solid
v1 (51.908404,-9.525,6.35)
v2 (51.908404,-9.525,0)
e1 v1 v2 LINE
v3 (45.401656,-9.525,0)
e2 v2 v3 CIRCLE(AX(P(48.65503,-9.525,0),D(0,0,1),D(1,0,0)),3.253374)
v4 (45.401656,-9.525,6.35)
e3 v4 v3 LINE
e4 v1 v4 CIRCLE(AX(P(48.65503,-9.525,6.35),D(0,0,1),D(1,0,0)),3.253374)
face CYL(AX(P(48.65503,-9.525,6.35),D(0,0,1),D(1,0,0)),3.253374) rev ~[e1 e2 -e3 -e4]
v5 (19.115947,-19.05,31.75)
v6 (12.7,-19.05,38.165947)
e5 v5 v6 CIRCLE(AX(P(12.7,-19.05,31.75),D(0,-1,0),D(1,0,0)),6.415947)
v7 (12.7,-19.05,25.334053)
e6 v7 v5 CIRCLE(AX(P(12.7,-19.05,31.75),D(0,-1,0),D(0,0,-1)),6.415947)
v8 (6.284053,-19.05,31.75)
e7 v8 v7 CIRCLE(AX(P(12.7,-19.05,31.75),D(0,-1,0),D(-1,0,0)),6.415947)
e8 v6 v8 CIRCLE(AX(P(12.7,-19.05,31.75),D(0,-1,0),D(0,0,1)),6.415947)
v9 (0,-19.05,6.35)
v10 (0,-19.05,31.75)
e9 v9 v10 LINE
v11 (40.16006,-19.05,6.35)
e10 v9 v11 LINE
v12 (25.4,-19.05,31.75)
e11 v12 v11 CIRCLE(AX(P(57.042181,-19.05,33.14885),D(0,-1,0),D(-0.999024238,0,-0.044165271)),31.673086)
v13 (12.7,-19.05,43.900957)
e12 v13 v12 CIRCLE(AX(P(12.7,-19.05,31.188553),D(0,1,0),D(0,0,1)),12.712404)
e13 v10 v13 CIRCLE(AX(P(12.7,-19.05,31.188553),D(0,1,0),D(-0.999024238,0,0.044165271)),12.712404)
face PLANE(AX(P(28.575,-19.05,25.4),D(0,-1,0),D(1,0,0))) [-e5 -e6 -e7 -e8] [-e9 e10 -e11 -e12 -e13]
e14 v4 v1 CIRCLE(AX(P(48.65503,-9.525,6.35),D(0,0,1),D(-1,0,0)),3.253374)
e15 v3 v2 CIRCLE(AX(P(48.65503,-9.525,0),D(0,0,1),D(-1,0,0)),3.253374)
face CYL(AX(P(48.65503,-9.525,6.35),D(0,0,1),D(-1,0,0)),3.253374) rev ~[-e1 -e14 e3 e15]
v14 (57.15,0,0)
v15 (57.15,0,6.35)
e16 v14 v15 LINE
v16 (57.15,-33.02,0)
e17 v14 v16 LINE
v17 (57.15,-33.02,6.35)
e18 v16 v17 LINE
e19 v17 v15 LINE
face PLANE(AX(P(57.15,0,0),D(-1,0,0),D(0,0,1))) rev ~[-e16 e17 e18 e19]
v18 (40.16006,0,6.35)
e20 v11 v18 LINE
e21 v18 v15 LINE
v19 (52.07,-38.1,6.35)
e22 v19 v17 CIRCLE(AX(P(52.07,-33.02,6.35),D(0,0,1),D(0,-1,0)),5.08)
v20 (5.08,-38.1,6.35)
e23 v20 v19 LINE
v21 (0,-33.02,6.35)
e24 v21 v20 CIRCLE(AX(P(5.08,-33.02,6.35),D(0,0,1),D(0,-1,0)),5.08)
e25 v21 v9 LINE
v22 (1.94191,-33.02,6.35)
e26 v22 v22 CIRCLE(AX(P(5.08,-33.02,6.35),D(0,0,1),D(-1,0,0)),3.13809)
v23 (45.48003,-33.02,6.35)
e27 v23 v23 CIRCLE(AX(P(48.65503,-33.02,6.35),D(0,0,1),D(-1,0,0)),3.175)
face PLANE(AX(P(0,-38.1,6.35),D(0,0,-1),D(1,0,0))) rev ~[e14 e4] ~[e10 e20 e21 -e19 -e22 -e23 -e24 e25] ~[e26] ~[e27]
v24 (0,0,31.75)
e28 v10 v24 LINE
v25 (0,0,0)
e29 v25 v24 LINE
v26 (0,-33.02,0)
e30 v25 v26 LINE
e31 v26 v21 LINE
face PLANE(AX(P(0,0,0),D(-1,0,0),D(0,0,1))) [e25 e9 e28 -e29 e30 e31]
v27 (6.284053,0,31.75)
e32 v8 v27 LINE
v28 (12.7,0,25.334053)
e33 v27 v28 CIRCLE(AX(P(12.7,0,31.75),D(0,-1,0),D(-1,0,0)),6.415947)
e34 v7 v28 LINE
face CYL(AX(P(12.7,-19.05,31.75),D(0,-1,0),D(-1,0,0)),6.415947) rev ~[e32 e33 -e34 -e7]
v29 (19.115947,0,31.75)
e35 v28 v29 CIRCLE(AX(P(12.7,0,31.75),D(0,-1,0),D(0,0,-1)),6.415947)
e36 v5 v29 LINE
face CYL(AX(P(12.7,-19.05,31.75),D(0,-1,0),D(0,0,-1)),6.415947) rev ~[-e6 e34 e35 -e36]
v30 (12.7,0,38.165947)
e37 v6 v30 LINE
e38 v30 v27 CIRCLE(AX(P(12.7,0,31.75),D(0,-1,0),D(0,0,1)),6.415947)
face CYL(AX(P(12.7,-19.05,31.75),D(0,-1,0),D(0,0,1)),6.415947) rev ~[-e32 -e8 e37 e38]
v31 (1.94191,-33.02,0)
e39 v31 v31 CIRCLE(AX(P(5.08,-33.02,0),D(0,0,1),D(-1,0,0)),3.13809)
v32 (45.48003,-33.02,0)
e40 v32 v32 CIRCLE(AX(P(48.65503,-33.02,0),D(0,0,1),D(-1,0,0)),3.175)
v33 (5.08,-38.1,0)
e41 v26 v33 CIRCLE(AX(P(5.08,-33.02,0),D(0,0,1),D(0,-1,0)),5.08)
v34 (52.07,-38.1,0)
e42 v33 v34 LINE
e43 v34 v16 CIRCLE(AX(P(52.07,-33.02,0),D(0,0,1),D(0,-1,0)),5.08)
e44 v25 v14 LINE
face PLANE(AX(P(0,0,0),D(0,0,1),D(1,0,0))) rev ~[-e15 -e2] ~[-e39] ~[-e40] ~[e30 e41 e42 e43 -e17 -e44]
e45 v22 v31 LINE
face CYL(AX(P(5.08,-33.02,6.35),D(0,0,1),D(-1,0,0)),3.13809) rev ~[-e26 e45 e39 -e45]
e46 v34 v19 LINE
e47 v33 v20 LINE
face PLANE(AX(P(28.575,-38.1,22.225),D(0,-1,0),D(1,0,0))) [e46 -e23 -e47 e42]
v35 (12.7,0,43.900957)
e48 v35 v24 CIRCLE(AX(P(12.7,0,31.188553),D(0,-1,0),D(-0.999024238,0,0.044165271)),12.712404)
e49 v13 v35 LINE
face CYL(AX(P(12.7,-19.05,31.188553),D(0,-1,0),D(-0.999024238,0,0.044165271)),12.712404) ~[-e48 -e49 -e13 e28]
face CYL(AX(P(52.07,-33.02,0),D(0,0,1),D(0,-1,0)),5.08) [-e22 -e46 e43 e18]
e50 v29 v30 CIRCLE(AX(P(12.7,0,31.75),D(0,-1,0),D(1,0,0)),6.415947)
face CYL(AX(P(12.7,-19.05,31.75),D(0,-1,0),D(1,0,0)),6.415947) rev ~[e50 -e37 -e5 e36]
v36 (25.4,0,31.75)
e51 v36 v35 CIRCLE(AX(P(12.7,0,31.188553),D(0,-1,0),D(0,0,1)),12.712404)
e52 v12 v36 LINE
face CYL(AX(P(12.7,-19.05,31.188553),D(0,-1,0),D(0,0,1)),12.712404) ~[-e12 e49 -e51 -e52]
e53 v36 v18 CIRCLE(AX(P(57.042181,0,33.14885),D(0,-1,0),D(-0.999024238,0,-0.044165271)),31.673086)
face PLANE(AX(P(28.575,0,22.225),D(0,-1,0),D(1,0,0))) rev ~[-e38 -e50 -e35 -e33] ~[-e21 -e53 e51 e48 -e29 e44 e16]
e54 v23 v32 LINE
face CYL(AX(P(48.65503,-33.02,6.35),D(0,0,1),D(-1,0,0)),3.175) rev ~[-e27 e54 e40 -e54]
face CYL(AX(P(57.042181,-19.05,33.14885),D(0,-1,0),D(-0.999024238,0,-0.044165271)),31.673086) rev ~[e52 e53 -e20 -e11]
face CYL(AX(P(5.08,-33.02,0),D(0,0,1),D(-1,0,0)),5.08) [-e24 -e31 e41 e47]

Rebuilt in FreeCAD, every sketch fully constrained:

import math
import FreeCAD as App
import Part
import Sketcher
from FreeCAD import Vector
Q = App.Units.Quantity


def edges_at(feature, points):
    """Names of the edges that pass closest to the given points."""
    edges = feature.Shape.Edges
    near = lambda p: min(range(len(edges)), key=lambda i: edges[i].distToShape(Part.Vertex(*p))[0])
    return sorted({f"Edge{near(p) + 1}" for p in points})


def add_polygon(sketch, points):
    """Adds a closed chain of lines whose ends are joined by coincident constraints."""
    first, n = sketch.GeometryCount, len(points)
    for a, b in zip(points, points[1:] + points[:1]):
        sketch.addGeometry(Part.LineSegment(App.Vector(*a, 0), App.Vector(*b, 0)), False)
    for i in range(n):
        sketch.addConstraint(Sketcher.Constraint("Coincident", first + i, 2, first + (i + 1) % n, 1))

doc = App.newDocument("Part")
body = doc.addObject("PartDesign::Body", "Body")

# Sketch on XZ plane
sketch1 = body.newObject("Sketcher::SketchObject", "Sketch")
sketch1.AttachmentSupport = (doc.getObject("XZ_Plane"), [""])
sketch1.MapMode = "FlatFace"
add_polygon(sketch1, [(0, 44), (0, 0), (57, 0), (57, 44)])  # lines 0-3
sketch1.addConstraint(Sketcher.Constraint("Vertical", 0))
sketch1.addConstraint(Sketcher.Constraint("Horizontal", 1))
sketch1.addConstraint(Sketcher.Constraint("Vertical", 2))
sketch1.addConstraint(Sketcher.Constraint("Horizontal", 3))
sketch1.addConstraint(Sketcher.Constraint("Coincident", 0, 2, -1, 1))
sketch1.addConstraint(Sketcher.Constraint("DistanceX", 1, 1, 1, 2, Q("2.25 in")))
sketch1.addConstraint(Sketcher.Constraint("DistanceY", 0, 2, 0, 1, Q("1.75 in")))
pad1 = body.newObject("PartDesign::Pad", "Pad")
pad1.Profile = sketch1
pad1.Length = Q("1.5 in")

# Sketch on XZ plane
sketch2 = body.newObject("Sketcher::SketchObject", "Sketch001")
sketch2.AttachmentSupport = (doc.getObject("XZ_Plane"), [""])
sketch2.MapMode = "FlatFace"
sketch2.AttachmentOffset = App.Placement(Vector(0, 0, 1.5 * 25.4), App.Rotation())
add_polygon(sketch2, [(0, 44), (0, 6), (57, 6), (57, 44)])  # lines 0-3
sketch2.addConstraint(Sketcher.Constraint("Vertical", 0))
sketch2.addConstraint(Sketcher.Constraint("Horizontal", 1))
sketch2.addConstraint(Sketcher.Constraint("Vertical", 2))
sketch2.addConstraint(Sketcher.Constraint("Horizontal", 3))
sketch2.addConstraint(Sketcher.Constraint("PointOnObject", 0, 2, -2))
sketch2.addConstraint(Sketcher.Constraint("DistanceY", 0, 2, 0, 1, Q("1.5 in")))
sketch2.addConstraint(Sketcher.Constraint("DistanceX", 1, 1, 1, 2, Q("2.25 in")))
sketch2.addConstraint(Sketcher.Constraint("DistanceY", -1, 1, 0, 2, Q("0.25 in")))
pocket1 = body.newObject("PartDesign::Pocket", "Pocket")
pocket1.Profile = sketch2
pocket1.Length = Q("0.75 in")
doc.recompute()

fillet = body.newObject("PartDesign::Fillet", "Fillet")
fillet.Base = (pocket1, edges_at(pocket1, [(0, -38.1, 3.175), (57.15, -38.1, 3.175)]))
fillet.Radius = Q("0.2 in")

# Sketch on XZ plane
sketch3 = body.newObject("Sketcher::SketchObject", "Sketch002")
sketch3.AttachmentSupport = (doc.getObject("XZ_Plane"), [""])
sketch3.MapMode = "FlatFace"
sketch3.AttachmentOffset = App.Placement(Vector(0, 0, 0.75 * 25.4), App.Rotation())
sketch3.addGeometry(Part.ArcOfCircle(Part.Circle(Vector(12.7, 31.75, 0), Vector(0, 0, 1), 6.415947), math.radians(90), math.radians(180)), False)
sketch3.addGeometry(Part.ArcOfCircle(Part.Circle(Vector(12.7, 31.75, 0), Vector(0, 0, 1), 6.415947), math.radians(180), math.radians(270)), False)
sketch3.addGeometry(Part.ArcOfCircle(Part.Circle(Vector(12.7, 31.75, 0), Vector(0, 0, 1), 6.415947), math.radians(-90), math.radians(0)), False)
sketch3.addGeometry(Part.ArcOfCircle(Part.Circle(Vector(12.7, 31.75, 0), Vector(0, 0, 1), 6.415947), math.radians(0), math.radians(90)), False)
sketch3.addGeometry(Part.LineSegment(Vector(0, 44.45, 0), Vector(0, 31.75, 0)), False)
sketch3.addGeometry(Part.ArcOfCircle(Part.Circle(Vector(12.7, 31.188553, 0), Vector(0, 0, 1), 12.712404), math.radians(90), math.radians(177.468693)), False)
sketch3.addGeometry(Part.ArcOfCircle(Part.Circle(Vector(12.7, 31.188553, 0), Vector(0, 0, 1), 12.712404), math.radians(2.531307), math.radians(90)), False)
sketch3.addGeometry(Part.ArcOfCircle(Part.Circle(Vector(57.042181, 33.14885, 0), Vector(0, 0, 1), 31.673086), math.radians(-177.468693), math.radians(-122.20916)), False)
sketch3.addGeometry(Part.LineSegment(Vector(40.16006, 6.35, 0), Vector(57.15, 6.35, 0)), False)
sketch3.addGeometry(Part.LineSegment(Vector(57.15, 6.35, 0), Vector(57.15, 44.45, 0)), False)
sketch3.addGeometry(Part.LineSegment(Vector(57.15, 44.45, 0), Vector(0, 44.45, 0)), False)
sketch3.addConstraint(Sketcher.Constraint("Coincident", 0, 2, 1, 1))
sketch3.addConstraint(Sketcher.Constraint("Coincident", 1, 2, 2, 1))
sketch3.addConstraint(Sketcher.Constraint("Coincident", 2, 2, 3, 1))
sketch3.addConstraint(Sketcher.Constraint("Coincident", 3, 2, 0, 1))
sketch3.addConstraint(Sketcher.Constraint("Coincident", 4, 2, 5, 2))
sketch3.addConstraint(Sketcher.Constraint("Coincident", 5, 1, 6, 2))
sketch3.addConstraint(Sketcher.Constraint("Coincident", 6, 1, 7, 1))
sketch3.addConstraint(Sketcher.Constraint("Coincident", 7, 2, 8, 1))
sketch3.addConstraint(Sketcher.Constraint("Coincident", 8, 2, 9, 1))
sketch3.addConstraint(Sketcher.Constraint("Coincident", 9, 2, 10, 1))
sketch3.addConstraint(Sketcher.Constraint("Coincident", 10, 2, 4, 1))
sketch3.addConstraint(Sketcher.Constraint("Vertical", 4))
sketch3.addConstraint(Sketcher.Constraint("Horizontal", 8))
sketch3.addConstraint(Sketcher.Constraint("Vertical", 9))
sketch3.addConstraint(Sketcher.Constraint("Horizontal", 10))
sketch3.addConstraint(Sketcher.Constraint("Coincident", 1, 3, 0, 3))
sketch3.addConstraint(Sketcher.Constraint("Coincident", 2, 3, 0, 3))
sketch3.addConstraint(Sketcher.Constraint("Coincident", 6, 3, 5, 3))
sketch3.addConstraint(Sketcher.Constraint("PointOnObject", 4, 2, -2))
sketch3.addConstraint(Sketcher.Constraint("DistanceY", 4, 2, 4, 1, Q("0.5 in")))
sketch3.addConstraint(Sketcher.Constraint("DistanceY", 9, 1, 9, 2, Q("1.5 in")))
sketch3.addConstraint(Sketcher.Constraint("DistanceX", -1, 1, 6, 1, Q("1 in")))
sketch3.addConstraint(Sketcher.Constraint("DistanceY", 7, 2, 6, 1, Q("1 in")))
sketch3.addConstraint(Sketcher.Constraint("DistanceY", 7, 2, 2, 2, Q("1 in")))
sketch3.addConstraint(Sketcher.Constraint("DistanceX", 10, 2, 10, 1, Q("2.25 in")))
sketch3.addConstraint(Sketcher.Constraint("DistanceX", -1, 1, 0, 3, Q("0.5 in")))
sketch3.addConstraint(Sketcher.Constraint("DistanceX", -1, 1, 3, 3, Q("0.5 in")))
sketch3.addConstraint(Sketcher.Constraint("DistanceX", -1, 1, 1, 2, Q("0.5 in")))
sketch3.addConstraint(Sketcher.Constraint("DistanceX", -1, 1, 3, 2, Q("0.5 in")))
sketch3.addConstraint(Sketcher.Constraint("DistanceX", -1, 1, 5, 1, Q("0.5 in")))
sketch3.addConstraint(Sketcher.Constraint("DistanceY", 0, 2, 10, 2, Q("0.5 in")))
sketch3.addConstraint(Sketcher.Constraint("DistanceY", 0, 3, 10, 2, Q("0.5 in")))
sketch3.addConstraint(Sketcher.Constraint("DistanceY", -1, 1, 0, 3, Q("1.25 in")))
sketch3.addConstraint(Sketcher.Constraint("Radius", 0, 6.415947))
sketch3.addConstraint(Sketcher.Constraint("Radius", 5, 12.712404))
sketch3.addConstraint(Sketcher.Constraint("Radius", 7, 31.673086))
sketch3.addConstraint(Sketcher.Constraint("DistanceX", 8, 1, 8, 2, 16.98994))
pocket2 = body.newObject("PartDesign::Pocket", "Pocket001")
pocket2.Profile = sketch3
pocket2.Type = "ThroughAll"

# Sketch on XY plane
sketch4 = body.newObject("Sketcher::SketchObject", "Sketch003")
sketch4.AttachmentSupport = (doc.getObject("XY_Plane"), [""])
sketch4.MapMode = "FlatFace"
sketch4.AttachmentOffset = App.Placement(Vector(0, 0, 0.25 * 25.4), App.Rotation())
sketch4.addGeometry(Part.Circle(Vector(5.1, -33, 0), Vector(0, 0, 1), 3.1), False)
sketch4.addGeometry(Part.Circle(Vector(48.7, -33, 0), Vector(0, 0, 1), 3.2), False)
sketch4.addGeometry(Part.ArcOfCircle(Part.Circle(Vector(48.7, -9.5, 0), Vector(0, 0, 1), 3.3), math.radians(0), math.radians(180)), False)
sketch4.addGeometry(Part.ArcOfCircle(Part.Circle(Vector(48.7, -9.5, 0), Vector(0, 0, 1), 3.3), math.radians(180), math.radians(360)), False)
sketch4.addConstraint(Sketcher.Constraint("Tangent", 2, 1, 3, 2))
sketch4.addConstraint(Sketcher.Constraint("Coincident", 3, 1, 2, 2))
sketch4.addConstraint(Sketcher.Constraint("Horizontal", 0, 3, 1, 3))
sketch4.addConstraint(Sketcher.Constraint("Horizontal", 3, 3, 2, 1))
sketch4.addConstraint(Sketcher.Constraint("Horizontal", 2, 1, 3, 1))
sketch4.addConstraint(Sketcher.Constraint("Vertical", 1, 3, 2, 3))
sketch4.addConstraint(Sketcher.Constraint("Diameter", 1, Q("0.25 in")))
sketch4.addConstraint(Sketcher.Constraint("DistanceX", -1, 1, 0, 3, Q("0.2 in")))
sketch4.addConstraint(Sketcher.Constraint("DistanceY", 0, 3, -1, 1, Q("1.3 in")))
sketch4.addConstraint(Sketcher.Constraint("Diameter", 0, 6.276181))
sketch4.addConstraint(Sketcher.Constraint("DistanceY", 2, 3, -1, 1, Q("0.375 in")))
sketch4.addConstraint(Sketcher.Constraint("Radius", 2, 3.253374))
sketch4.addConstraint(Sketcher.Constraint("DistanceX", -1, 1, 1, 3, 48.65503))
pocket3 = body.newObject("PartDesign::Pocket", "Pocket002")
pocket3.Profile = sketch4
pocket3.Type = "ThroughAll"

doc.recompute()
